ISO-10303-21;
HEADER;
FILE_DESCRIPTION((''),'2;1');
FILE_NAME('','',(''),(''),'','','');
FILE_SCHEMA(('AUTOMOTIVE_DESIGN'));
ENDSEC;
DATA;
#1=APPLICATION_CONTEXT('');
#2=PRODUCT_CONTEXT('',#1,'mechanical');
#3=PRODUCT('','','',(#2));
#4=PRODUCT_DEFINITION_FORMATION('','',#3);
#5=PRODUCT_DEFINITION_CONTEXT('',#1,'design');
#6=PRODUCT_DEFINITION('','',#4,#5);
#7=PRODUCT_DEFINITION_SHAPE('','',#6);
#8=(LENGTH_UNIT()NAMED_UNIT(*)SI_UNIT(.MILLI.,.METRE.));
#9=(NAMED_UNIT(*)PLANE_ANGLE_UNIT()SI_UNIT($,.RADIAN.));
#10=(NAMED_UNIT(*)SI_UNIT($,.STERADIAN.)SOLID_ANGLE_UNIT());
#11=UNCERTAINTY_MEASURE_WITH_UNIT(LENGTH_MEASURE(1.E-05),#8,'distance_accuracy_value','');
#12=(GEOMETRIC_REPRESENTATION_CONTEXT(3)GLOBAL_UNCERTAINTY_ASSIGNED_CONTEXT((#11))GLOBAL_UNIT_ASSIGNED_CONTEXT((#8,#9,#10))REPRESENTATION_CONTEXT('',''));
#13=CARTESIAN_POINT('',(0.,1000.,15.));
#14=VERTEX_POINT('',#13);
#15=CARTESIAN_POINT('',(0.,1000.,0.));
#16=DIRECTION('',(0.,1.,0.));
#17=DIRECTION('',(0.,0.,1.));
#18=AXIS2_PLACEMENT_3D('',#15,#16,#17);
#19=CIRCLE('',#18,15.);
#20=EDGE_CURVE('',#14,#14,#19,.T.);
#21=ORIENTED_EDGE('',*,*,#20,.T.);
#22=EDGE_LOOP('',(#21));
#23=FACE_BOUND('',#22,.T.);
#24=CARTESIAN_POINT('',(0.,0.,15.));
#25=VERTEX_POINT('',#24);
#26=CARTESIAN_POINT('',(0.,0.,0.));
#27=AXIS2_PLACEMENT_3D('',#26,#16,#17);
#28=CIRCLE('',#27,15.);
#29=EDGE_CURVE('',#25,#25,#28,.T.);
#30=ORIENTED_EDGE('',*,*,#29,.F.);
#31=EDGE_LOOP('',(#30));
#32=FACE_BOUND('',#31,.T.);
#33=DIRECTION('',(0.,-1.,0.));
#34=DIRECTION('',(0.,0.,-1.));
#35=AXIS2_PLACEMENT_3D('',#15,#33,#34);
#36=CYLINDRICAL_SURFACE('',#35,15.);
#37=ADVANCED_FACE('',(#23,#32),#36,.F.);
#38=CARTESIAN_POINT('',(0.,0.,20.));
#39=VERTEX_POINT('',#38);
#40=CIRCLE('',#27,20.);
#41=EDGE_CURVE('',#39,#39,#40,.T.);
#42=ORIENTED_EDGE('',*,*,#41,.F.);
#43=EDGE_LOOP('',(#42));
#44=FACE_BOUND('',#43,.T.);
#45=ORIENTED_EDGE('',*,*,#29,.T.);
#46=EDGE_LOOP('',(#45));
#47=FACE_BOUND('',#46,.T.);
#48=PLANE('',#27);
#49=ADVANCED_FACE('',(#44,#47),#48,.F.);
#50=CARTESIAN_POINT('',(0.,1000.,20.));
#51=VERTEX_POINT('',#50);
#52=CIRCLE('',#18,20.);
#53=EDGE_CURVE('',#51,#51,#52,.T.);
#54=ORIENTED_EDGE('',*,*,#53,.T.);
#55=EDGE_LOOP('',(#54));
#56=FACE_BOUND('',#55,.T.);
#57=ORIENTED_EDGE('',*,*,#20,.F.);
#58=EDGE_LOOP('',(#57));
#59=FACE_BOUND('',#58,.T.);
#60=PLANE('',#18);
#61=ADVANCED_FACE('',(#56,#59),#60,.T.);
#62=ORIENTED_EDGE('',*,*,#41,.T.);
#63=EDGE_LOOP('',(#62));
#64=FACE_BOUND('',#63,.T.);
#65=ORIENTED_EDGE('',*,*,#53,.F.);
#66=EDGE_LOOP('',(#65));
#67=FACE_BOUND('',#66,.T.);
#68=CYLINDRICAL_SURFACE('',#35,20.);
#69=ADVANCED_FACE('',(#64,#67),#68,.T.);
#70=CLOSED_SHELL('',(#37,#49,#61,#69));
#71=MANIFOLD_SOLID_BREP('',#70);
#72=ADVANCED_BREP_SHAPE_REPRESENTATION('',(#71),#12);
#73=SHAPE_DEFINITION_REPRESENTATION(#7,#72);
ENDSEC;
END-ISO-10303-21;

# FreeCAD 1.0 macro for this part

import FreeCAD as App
import Part
import Sketcher
Q = App.Units.Quantity

doc = App.newDocument("Part")
body = doc.addObject("PartDesign::Body", "Body")

# Sketch on XZ plane
sketch1 = doc.addObject("Sketcher::SketchObject", "Sketch")
body.addObject(sketch1)
sketch1.AttachmentSupport = (doc.XZ_Plane, [""])
sketch1.MapMode = "FlatFace"
sketch1.addGeometry([
    Part.Circle(App.Vector(0, 0, 0), App.Vector(0, 0, 1), 20),
    Part.Circle(App.Vector(0, 0, 0), App.Vector(0, 0, 1), 15),
], False)
sketch1.addConstraint([
    Sketcher.Constraint("Coincident", 0, 3, -1, 1),
    Sketcher.Constraint("Coincident", 1, 3, -1, 1),
    Sketcher.Constraint("Diameter", 0, Q("40 mm")),
    Sketcher.Constraint("Diameter", 1, Q("30 mm")),
])
pad1 = doc.addObject("PartDesign::Pad", "Pad")
body.addObject(pad1)
pad1.Profile = sketch1
pad1.Length = 1000
pad1.Reversed = True

doc.recompute()
